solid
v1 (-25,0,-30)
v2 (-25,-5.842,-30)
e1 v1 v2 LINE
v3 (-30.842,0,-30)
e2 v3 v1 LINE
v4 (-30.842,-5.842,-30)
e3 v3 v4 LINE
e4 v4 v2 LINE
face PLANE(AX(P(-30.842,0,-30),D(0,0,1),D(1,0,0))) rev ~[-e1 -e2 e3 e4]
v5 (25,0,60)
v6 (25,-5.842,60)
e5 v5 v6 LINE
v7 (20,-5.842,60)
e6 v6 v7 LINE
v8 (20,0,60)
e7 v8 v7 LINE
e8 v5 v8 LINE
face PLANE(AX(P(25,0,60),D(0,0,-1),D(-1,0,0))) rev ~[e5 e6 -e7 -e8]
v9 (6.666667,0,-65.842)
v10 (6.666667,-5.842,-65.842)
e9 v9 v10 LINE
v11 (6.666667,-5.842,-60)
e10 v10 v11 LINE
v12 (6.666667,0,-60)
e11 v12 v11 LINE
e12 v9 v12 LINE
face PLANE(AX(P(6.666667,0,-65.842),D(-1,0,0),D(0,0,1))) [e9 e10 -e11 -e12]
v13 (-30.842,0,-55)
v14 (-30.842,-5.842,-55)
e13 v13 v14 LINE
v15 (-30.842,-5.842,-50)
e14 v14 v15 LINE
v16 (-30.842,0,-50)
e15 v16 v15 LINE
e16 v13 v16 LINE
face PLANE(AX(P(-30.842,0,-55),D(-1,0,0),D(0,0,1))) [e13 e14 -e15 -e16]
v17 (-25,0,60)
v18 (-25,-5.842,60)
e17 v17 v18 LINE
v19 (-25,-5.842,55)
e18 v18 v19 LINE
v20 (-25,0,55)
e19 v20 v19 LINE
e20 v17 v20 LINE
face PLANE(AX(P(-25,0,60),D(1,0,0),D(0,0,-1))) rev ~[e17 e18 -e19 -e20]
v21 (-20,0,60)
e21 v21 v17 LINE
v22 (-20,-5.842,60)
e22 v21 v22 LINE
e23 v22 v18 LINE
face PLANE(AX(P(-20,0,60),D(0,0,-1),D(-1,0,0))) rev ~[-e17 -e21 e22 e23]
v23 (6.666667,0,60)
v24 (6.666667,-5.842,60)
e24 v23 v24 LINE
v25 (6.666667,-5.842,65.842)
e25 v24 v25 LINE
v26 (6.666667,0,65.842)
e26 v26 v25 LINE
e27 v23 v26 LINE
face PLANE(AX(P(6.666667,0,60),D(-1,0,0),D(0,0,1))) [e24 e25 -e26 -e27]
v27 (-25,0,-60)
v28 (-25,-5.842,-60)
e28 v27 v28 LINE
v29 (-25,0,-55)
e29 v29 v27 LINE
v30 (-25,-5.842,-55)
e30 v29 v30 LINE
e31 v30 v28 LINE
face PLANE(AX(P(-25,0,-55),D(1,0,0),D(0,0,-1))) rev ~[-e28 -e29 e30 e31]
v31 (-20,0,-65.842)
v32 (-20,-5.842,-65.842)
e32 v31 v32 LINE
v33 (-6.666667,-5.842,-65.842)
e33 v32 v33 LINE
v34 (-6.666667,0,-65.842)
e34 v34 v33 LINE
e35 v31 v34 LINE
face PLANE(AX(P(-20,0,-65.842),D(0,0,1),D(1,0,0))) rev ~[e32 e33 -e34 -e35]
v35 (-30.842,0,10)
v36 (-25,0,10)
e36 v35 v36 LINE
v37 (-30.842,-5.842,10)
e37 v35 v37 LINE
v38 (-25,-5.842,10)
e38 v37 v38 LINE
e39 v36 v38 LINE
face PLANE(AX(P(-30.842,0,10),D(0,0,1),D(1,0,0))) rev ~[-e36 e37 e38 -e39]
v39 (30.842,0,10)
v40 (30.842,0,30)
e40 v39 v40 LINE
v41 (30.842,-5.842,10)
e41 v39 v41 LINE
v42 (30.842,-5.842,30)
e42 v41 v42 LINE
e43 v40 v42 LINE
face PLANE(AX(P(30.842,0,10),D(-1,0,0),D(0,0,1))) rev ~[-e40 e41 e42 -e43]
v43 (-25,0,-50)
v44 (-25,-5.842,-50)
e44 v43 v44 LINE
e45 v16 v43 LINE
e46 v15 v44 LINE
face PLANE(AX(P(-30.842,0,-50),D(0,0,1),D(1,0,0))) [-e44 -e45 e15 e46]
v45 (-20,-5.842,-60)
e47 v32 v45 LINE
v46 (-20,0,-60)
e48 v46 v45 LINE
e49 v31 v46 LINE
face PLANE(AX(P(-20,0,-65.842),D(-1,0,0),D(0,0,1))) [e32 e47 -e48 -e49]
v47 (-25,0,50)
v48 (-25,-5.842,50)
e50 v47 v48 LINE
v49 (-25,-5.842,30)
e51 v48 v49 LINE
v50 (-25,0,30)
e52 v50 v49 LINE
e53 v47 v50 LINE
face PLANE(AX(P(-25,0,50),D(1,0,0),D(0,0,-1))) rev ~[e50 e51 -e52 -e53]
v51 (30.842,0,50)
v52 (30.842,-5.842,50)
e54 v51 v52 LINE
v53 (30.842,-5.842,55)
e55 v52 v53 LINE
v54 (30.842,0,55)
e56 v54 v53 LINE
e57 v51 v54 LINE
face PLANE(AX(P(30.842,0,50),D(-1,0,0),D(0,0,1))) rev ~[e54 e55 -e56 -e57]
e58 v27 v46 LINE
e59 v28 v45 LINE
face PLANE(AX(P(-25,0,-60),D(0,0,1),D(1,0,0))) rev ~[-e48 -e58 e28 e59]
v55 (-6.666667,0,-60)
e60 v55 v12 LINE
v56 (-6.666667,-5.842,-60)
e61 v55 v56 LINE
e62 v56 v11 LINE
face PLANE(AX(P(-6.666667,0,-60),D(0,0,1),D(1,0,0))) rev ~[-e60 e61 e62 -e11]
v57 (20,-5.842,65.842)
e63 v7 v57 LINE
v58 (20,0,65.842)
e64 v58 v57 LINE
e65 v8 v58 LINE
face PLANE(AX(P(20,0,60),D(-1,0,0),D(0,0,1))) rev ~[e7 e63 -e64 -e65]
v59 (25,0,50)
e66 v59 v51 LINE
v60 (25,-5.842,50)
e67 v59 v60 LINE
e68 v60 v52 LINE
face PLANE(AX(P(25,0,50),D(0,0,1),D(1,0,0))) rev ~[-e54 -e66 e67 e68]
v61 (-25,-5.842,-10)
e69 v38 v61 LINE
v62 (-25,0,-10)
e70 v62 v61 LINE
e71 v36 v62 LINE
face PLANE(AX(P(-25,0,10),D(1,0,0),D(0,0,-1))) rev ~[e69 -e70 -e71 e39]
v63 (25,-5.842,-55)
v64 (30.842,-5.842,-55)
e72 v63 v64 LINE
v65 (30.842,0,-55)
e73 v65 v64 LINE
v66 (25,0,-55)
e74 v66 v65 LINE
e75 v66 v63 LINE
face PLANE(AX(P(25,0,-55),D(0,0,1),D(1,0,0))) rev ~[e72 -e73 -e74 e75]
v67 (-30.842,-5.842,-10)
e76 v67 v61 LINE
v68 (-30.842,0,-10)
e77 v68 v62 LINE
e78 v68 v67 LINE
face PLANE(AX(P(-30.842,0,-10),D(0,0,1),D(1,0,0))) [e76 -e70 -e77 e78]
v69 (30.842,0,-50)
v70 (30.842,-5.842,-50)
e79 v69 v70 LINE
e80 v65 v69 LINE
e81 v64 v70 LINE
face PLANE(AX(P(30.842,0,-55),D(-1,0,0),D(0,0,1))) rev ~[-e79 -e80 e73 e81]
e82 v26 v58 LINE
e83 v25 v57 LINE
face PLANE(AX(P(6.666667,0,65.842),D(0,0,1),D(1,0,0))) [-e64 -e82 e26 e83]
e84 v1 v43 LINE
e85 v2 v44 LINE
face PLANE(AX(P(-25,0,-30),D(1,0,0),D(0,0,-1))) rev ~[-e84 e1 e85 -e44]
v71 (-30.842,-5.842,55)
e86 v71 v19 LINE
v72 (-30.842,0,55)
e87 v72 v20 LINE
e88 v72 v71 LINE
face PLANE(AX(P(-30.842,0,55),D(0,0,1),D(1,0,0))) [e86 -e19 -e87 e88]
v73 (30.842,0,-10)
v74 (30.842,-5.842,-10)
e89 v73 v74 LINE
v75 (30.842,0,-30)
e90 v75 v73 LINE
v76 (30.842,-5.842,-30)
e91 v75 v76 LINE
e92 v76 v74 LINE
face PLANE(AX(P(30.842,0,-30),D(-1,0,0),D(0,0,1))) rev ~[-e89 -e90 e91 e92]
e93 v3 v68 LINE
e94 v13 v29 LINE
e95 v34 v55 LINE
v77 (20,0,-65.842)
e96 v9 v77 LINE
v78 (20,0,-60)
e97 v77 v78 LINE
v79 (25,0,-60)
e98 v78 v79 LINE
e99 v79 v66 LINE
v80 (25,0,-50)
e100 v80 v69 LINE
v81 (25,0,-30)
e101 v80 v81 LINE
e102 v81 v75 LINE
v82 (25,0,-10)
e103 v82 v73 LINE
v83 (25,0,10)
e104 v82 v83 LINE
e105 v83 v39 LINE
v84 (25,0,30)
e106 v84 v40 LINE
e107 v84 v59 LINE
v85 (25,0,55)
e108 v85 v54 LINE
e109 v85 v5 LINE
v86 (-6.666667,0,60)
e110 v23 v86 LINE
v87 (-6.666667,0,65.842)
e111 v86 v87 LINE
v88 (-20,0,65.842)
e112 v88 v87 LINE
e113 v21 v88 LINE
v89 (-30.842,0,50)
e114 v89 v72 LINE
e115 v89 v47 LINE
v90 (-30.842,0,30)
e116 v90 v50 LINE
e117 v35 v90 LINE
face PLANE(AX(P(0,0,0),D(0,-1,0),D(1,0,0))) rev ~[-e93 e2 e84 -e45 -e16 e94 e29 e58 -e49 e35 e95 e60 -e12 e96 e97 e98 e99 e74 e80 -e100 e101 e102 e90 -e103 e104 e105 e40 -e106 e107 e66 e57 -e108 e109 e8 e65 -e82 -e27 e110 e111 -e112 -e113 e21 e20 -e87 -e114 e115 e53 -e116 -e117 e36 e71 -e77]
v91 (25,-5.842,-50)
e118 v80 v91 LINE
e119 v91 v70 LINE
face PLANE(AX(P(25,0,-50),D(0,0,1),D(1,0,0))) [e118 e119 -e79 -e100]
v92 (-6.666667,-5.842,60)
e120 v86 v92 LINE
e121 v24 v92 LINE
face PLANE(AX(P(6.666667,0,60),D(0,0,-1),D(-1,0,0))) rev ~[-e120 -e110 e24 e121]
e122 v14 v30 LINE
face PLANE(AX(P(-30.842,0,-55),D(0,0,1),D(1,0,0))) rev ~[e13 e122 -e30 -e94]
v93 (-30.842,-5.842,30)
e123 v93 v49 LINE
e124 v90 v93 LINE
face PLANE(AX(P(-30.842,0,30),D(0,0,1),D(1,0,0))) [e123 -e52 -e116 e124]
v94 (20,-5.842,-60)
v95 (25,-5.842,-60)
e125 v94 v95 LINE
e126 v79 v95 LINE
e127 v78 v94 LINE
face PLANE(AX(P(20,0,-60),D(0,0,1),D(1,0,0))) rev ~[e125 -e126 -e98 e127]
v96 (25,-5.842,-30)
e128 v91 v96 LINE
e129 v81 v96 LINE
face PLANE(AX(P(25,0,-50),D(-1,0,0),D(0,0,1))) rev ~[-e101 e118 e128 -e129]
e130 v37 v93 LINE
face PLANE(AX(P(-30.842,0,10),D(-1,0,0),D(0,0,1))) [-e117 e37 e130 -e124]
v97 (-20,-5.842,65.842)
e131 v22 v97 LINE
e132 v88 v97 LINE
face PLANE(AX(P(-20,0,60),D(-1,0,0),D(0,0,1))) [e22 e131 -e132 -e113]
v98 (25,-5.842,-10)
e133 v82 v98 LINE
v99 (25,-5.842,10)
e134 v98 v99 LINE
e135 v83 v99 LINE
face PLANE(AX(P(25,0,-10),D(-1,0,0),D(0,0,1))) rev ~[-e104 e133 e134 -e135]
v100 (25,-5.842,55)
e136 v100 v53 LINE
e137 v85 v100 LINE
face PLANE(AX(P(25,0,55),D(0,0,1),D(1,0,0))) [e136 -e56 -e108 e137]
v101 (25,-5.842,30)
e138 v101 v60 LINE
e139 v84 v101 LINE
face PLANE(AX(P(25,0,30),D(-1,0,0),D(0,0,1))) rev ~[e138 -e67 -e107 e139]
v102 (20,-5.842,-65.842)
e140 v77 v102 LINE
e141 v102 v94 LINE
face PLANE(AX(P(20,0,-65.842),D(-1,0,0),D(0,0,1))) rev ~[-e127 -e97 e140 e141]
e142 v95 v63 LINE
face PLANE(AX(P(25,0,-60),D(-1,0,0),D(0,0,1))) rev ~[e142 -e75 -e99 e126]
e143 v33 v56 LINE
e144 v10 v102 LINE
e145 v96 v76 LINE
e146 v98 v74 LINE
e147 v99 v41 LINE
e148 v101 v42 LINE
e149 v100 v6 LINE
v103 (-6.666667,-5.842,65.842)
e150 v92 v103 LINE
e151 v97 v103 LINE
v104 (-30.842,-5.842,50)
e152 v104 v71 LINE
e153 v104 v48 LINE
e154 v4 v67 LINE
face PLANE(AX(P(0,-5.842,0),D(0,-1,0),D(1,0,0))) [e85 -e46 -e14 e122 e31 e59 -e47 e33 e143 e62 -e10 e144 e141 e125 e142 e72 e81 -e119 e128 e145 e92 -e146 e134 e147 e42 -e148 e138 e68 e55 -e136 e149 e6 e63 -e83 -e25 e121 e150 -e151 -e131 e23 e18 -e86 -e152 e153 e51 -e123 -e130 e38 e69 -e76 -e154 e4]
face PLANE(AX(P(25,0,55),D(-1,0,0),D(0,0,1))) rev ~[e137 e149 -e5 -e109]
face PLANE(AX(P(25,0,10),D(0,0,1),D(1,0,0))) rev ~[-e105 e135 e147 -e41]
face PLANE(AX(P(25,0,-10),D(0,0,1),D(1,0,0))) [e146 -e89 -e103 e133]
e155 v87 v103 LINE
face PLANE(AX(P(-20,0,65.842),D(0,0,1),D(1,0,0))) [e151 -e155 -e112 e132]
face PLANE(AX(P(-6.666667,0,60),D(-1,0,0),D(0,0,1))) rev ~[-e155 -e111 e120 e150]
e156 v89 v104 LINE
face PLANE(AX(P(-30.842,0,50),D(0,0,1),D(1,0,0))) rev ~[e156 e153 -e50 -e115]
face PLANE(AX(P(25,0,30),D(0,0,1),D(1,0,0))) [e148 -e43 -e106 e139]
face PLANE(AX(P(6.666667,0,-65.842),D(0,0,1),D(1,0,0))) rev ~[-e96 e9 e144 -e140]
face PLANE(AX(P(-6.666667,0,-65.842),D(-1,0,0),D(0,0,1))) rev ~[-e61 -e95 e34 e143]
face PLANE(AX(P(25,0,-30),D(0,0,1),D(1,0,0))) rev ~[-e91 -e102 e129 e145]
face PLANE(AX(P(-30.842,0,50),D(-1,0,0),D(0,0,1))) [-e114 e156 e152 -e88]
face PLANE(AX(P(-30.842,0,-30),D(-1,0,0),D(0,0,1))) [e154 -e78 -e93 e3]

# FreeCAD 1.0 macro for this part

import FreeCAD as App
import Part
import Sketcher
from FreeCAD import Vector


def add_polygon(sketch, points):
    """Adds a closed chain of lines whose ends are joined by coincident constraints."""
    first, n = sketch.GeometryCount, len(points)
    for a, b in zip(points, points[1:] + points[:1]):
        sketch.addGeometry(Part.LineSegment(App.Vector(*a, 0), App.Vector(*b, 0)), False)
    for i in range(n):
        sketch.addConstraint(Sketcher.Constraint("Coincident", first + i, 2, first + (i + 1) % n, 1))

doc = App.newDocument("Part")
body = doc.addObject("PartDesign::Body", "Body")

sketch1 = doc.addObject("Sketcher::SketchObject", "Sketch")
body.addObject(sketch1)
sketch1.AttachmentSupport = (doc.XZ_Plane, [""])
sketch1.MapMode = "FlatFace"
add_polygon(sketch1, [(-25, 60), (-25, 55), (-30.842, 55), (-30.842, 50), (-25, 50), (-25, 30), (-30.842, 30), (-30.842, 10), (-25, 10), (-25, -10), (-30.842, -10), (-30.842, -30), (-25, -30), (-25, -50), (-30.842, -50), (-30.842, -55), (-25, -55), (-25, -60), (-20, -60), (-20, -65.842), (-6.666667, -65.842), (-6.666667, -60), (6.666667, -60), (6.666667, -65.842), (20, -65.842), (20, -60), (25, -60), (25, -55), (30.842, -55), (30.842, -50), (25, -50), (25, -30), (30.842, -30), (30.842, -10), (25, -10), (25, 10), (30.842, 10), (30.842, 30), (25, 30), (25, 50), (30.842, 50), (30.842, 55), (25, 55), (25, 60), (20, 60), (20, 65.842), (6.666667, 65.842), (6.666667, 60), (-6.666667, 60), (-6.666667, 65.842), (-20, 65.842), (-20, 60)])
sketch1.addConstraint([
    Sketcher.Constraint("Vertical", 0),
    Sketcher.Constraint("Horizontal", 1),
    Sketcher.Constraint("Vertical", 2),
    Sketcher.Constraint("Horizontal", 3),
    Sketcher.Constraint("Vertical", 4),
    Sketcher.Constraint("Horizontal", 5),
    Sketcher.Constraint("Vertical", 6),
    Sketcher.Constraint("Horizontal", 7),
    Sketcher.Constraint("Vertical", 8),
    Sketcher.Constraint("Horizontal", 9),
    Sketcher.Constraint("Vertical", 10),
    Sketcher.Constraint("Horizontal", 11),
    Sketcher.Constraint("Vertical", 12),
    Sketcher.Constraint("Horizontal", 13),
    Sketcher.Constraint("Vertical", 14),
    Sketcher.Constraint("Horizontal", 15),
    Sketcher.Constraint("Vertical", 16),
    Sketcher.Constraint("Horizontal", 17),
    Sketcher.Constraint("Vertical", 18),
    Sketcher.Constraint("Horizontal", 19),
    Sketcher.Constraint("Vertical", 20),
    Sketcher.Constraint("Horizontal", 21),
    Sketcher.Constraint("Vertical", 22),
    Sketcher.Constraint("Horizontal", 23),
    Sketcher.Constraint("Vertical", 24),
    Sketcher.Constraint("Horizontal", 25),
    Sketcher.Constraint("Vertical", 26),
    Sketcher.Constraint("Horizontal", 27),
    Sketcher.Constraint("Vertical", 28),
    Sketcher.Constraint("Horizontal", 29),
    Sketcher.Constraint("Vertical", 30),
    Sketcher.Constraint("Horizontal", 31),
    Sketcher.Constraint("Vertical", 32),
    Sketcher.Constraint("Horizontal", 33),
    Sketcher.Constraint("Vertical", 34),
    Sketcher.Constraint("Horizontal", 35),
    Sketcher.Constraint("Vertical", 36),
    Sketcher.Constraint("Horizontal", 37),
    Sketcher.Constraint("Vertical", 38),
    Sketcher.Constraint("Horizontal", 39),
    Sketcher.Constraint("Vertical", 40),
    Sketcher.Constraint("Horizontal", 41),
    Sketcher.Constraint("Vertical", 42),
    Sketcher.Constraint("Horizontal", 43),
    Sketcher.Constraint("Vertical", 44),
    Sketcher.Constraint("Horizontal", 45),
    Sketcher.Constraint("Vertical", 46),
    Sketcher.Constraint("Horizontal", 47),
    Sketcher.Constraint("Vertical", 48),
    Sketcher.Constraint("Horizontal", 49),
    Sketcher.Constraint("Vertical", 50),
    Sketcher.Constraint("Horizontal", 51),
    Sketcher.Constraint("Symmetric", 0, 2, 26, 2, -1, 1),
    Sketcher.Constraint("Symmetric", 2, 2, 28, 2, -1, 1),
    Sketcher.Constraint("Symmetric", 4, 2, 30, 2, -1, 1),
    Sketcher.Constraint("Symmetric", 6, 2, 32, 2, -1, 1),
    Sketcher.Constraint("Symmetric", 8, 2, 34, 2, -1, 1),
    Sketcher.Constraint("Symmetric", 10, 2, 36, 2, -1, 1),
    Sketcher.Constraint("Symmetric", 12, 2, 38, 2, -1, 1),
    Sketcher.Constraint("Symmetric", 14, 2, 40, 2, -1, 1),
    Sketcher.Constraint("Symmetric", 16, 2, 42, 2, -1, 1),
    Sketcher.Constraint("Symmetric", 18, 2, 44, 2, -1, 1),
    Sketcher.Constraint("Symmetric", 20, 2, 46, 2, -1, 1),
    Sketcher.Constraint("Symmetric", 22, 2, 48, 2, -1, 1),
    Sketcher.Constraint("Symmetric", 24, 2, 50, 2, -1, 1),
    Sketcher.Constraint("Symmetric", 19, 2, 22, 2, -2),
    Sketcher.Constraint("Symmetric", 17, 2, 24, 2, -2),
    Sketcher.Constraint("Symmetric", 15, 2, 26, 2, -2),
    Sketcher.Constraint("Symmetric", 13, 2, 28, 2, -2),
    Sketcher.Constraint("Symmetric", 11, 2, 30, 2, -2),
    Sketcher.Constraint("Symmetric", 9, 2, 32, 2, -2),
    Sketcher.Constraint("Horizontal", 17, 2, 20, 2),
    Sketcher.Constraint("Vertical", 0, 2, 3, 2),
    Sketcher.Constraint("Vertical", 2, 2, 5, 2),
    Sketcher.Constraint("Vertical", 4, 2, 7, 2),
    Sketcher.Constraint("Equal", 51, 0),
    Sketcher.Constraint("Equal", 0, 2),
    Sketcher.Constraint("Equal", 4, 6),
    Sketcher.Constraint("Equal", 6, 8),
    Sketcher.Constraint("Equal", 41, 18),
    Sketcher.Constraint("DistanceX", 17, 1, 17, 2, 5.0),
    Sketcher.Constraint("DistanceY", 4, 2, 4, 1, 20.0),
    Sketcher.Constraint("DistanceX", 0, 2, -1, 1, 25.0),
    Sketcher.Constraint("DistanceX", 1, 2, 1, 1, 5.842),
    Sketcher.Constraint("DistanceX", 19, 1, 19, 2, 13.333333),
])
pad1 = doc.addObject("PartDesign::Pad", "Pad")
body.addObject(pad1)
pad1.Profile = sketch1
pad1.Length = 5.842

doc.recompute()
